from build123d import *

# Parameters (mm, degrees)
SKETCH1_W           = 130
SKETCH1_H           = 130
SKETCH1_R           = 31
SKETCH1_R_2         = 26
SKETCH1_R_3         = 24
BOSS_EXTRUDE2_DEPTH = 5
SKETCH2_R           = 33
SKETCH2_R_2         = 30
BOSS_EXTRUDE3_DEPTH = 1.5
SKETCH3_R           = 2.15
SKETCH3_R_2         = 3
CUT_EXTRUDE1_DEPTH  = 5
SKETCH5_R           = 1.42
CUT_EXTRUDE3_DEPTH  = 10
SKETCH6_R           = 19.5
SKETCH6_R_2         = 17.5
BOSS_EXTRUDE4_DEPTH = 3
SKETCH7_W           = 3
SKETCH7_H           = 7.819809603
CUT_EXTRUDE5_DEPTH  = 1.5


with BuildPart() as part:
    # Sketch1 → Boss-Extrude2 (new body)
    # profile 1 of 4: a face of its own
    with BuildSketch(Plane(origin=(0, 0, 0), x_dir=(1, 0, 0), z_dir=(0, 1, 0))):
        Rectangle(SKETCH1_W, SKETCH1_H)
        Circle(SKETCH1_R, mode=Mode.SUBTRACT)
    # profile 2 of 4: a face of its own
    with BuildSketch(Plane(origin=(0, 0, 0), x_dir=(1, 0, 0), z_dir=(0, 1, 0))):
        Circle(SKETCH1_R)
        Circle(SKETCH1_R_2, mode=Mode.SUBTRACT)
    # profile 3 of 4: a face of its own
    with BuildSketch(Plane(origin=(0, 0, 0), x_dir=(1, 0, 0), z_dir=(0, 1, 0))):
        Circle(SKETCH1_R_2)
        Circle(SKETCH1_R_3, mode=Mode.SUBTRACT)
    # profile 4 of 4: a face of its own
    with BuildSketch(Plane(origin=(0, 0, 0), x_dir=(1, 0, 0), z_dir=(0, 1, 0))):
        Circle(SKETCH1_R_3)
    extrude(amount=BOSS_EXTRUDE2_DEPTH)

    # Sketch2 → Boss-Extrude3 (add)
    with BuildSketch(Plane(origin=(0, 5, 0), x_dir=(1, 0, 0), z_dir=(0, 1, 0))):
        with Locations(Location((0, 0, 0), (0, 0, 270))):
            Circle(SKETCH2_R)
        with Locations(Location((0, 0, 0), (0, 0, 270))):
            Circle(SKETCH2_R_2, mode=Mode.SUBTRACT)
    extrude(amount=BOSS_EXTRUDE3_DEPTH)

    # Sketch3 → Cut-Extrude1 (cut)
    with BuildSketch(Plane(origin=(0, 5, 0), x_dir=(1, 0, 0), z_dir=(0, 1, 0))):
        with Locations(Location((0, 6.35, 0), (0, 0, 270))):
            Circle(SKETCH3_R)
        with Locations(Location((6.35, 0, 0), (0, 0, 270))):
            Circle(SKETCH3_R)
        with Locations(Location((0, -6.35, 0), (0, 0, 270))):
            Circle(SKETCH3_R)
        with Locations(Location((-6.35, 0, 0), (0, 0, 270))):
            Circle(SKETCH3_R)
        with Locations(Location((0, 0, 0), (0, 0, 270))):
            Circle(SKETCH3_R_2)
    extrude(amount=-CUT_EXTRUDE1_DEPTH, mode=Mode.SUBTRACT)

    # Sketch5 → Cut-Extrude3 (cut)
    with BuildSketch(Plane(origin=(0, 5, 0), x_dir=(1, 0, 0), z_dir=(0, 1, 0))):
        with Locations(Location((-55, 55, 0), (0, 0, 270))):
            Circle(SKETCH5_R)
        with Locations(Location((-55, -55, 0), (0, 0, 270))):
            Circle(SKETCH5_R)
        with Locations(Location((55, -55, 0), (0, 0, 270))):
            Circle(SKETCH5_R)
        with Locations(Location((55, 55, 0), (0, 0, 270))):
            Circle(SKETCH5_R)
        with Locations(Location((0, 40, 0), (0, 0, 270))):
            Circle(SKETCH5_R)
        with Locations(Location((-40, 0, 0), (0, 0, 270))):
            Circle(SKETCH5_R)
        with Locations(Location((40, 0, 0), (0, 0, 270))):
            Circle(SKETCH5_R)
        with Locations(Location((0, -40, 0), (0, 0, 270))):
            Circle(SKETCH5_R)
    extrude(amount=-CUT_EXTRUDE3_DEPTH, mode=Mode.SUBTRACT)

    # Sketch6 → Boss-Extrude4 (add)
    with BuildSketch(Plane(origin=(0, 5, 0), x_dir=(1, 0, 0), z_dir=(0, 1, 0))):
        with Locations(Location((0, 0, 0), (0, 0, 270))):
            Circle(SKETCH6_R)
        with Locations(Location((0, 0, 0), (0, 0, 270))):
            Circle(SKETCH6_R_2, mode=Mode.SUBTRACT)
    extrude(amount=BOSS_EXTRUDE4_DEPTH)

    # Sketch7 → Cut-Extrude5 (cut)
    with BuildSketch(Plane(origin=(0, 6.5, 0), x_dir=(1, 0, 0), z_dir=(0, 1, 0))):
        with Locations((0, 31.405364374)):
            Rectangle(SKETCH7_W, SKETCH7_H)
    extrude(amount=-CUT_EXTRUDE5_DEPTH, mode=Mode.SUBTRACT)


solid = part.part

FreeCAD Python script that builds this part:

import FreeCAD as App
import Part
import Sketcher


def add_polygon(sketch, points):
    """Adds a closed chain of lines whose ends are joined by coincident constraints."""
    first, n = sketch.GeometryCount, len(points)
    for a, b in zip(points, points[1:] + points[:1]):
        sketch.addGeometry(Part.LineSegment(App.Vector(*a, 0), App.Vector(*b, 0)), False)
    for i in range(n):
        sketch.addConstraint(Sketcher.Constraint("Coincident", first + i, 2, first + (i + 1) % n, 1))

doc = App.newDocument("Part")
body = doc.addObject("PartDesign::Body", "Body")

# Sketch on XZ plane
sketch1 = body.newObject("Sketcher::SketchObject", "Sketch")
sketch1.AttachmentSupport = (doc.getObject("XZ_Plane"), [""])
sketch1.MapMode = "FlatFace"
add_polygon(sketch1, [(-65, -65), (-65, 65), (65, 65), (65, -65)])  # lines 0-3
sketch1.addConstraint(Sketcher.Constraint("Vertical", 0))
sketch1.addConstraint(Sketcher.Constraint("Horizontal", 1))
sketch1.addConstraint(Sketcher.Constraint("Vertical", 2))
sketch1.addConstraint(Sketcher.Constraint("Horizontal", 3))
sketch1.addConstraint(Sketcher.Constraint("Symmetric", 0, 2, 2, 2, -1, 1))
sketch1.addConstraint(Sketcher.Constraint("Equal", 3, 0))
sketch1.addConstraint(Sketcher.Constraint("DistanceX", 1, 1, 1, 2, 130.0))
pad1 = body.newObject("PartDesign::Pad", "Pad")
pad1.Profile = sketch1
pad1.Length = 5
pad1.Reversed = True

# Sketch on XZ plane
sketch2 = body.newObject("Sketcher::SketchObject", "Sketch001")
sketch2.AttachmentSupport = (doc.getObject("XZ_Plane"), [""])
sketch2.MapMode = "FlatFace"
sketch2.AttachmentOffset = App.Placement(App.Vector(0, 0, -5), App.Rotation())
sketch2.addGeometry(Part.Circle(App.Vector(0, 0, 0), App.Vector(0, 0, 1), 33), False)
sketch2.addGeometry(Part.Circle(App.Vector(0, 0, 0), App.Vector(0, 0, 1), 30), False)
sketch2.addConstraint(Sketcher.Constraint("Coincident", 0, 3, -1, 1))
sketch2.addConstraint(Sketcher.Constraint("Coincident", 1, 3, -1, 1))
sketch2.addConstraint(Sketcher.Constraint("Diameter", 0, 66.0))
sketch2.addConstraint(Sketcher.Constraint("Diameter", 1, 60.0))
pad2 = body.newObject("PartDesign::Pad", "Pad001")
pad2.Profile = sketch2
pad2.Length = 1.5
pad2.Reversed = True

# Sketch on XZ plane
sketch3 = body.newObject("Sketcher::SketchObject", "Sketch002")
sketch3.AttachmentSupport = (doc.getObject("XZ_Plane"), [""])
sketch3.MapMode = "FlatFace"
sketch3.AttachmentOffset = App.Placement(App.Vector(0, 0, -5), App.Rotation())
sketch3.addGeometry(Part.Circle(App.Vector(0, -6.3, 0), App.Vector(0, 0, 1), 2.1), False)
sketch3.addGeometry(Part.Circle(App.Vector(6.3, 0, 0), App.Vector(0, 0, 1), 2.1), False)
sketch3.addGeometry(Part.Circle(App.Vector(0, 6.3, 0), App.Vector(0, 0, 1), 2.1), False)
sketch3.addGeometry(Part.Circle(App.Vector(-6.3, 0, 0), App.Vector(0, 0, 1), 2.1), False)
sketch3.addGeometry(Part.Circle(App.Vector(0, 0, 0), App.Vector(0, 0, 1), 3), False)
sketch3.addConstraint(Sketcher.Constraint("Coincident", 4, 3, -1, 1))
sketch3.addConstraint(Sketcher.Constraint("Equal", 0, 1))
sketch3.addConstraint(Sketcher.Constraint("Equal", 1, 2))
sketch3.addConstraint(Sketcher.Constraint("Equal", 2, 3))
sketch3.addConstraint(Sketcher.Constraint("Symmetric", 0, 3, 2, 3, -1, 1))
sketch3.addConstraint(Sketcher.Constraint("Symmetric", 1, 3, 3, 3, -1, 1))
sketch3.addConstraint(Sketcher.Constraint("PointOnObject", 0, 3, -2))
sketch3.addConstraint(Sketcher.Constraint("PointOnObject", 1, 3, -1))
sketch3.addConstraint(Sketcher.Constraint("Diameter", 4, 6.0))
sketch3.addConstraint(Sketcher.Constraint("Diameter", 0, 4.3))
sketch3.addConstraint(Sketcher.Constraint("DistanceY", 0, 3, 2, 3, 12.7))
sketch3.addConstraint(Sketcher.Constraint("DistanceX", 3, 3, 1, 3, 12.7))
pocket1 = body.newObject("PartDesign::Pocket", "Pocket")
pocket1.Profile = sketch3
pocket1.Length = 5
pocket1.Reversed = True

# Sketch on XZ plane
sketch4 = body.newObject("Sketcher::SketchObject", "Sketch003")
sketch4.AttachmentSupport = (doc.getObject("XZ_Plane"), [""])
sketch4.MapMode = "FlatFace"
sketch4.AttachmentOffset = App.Placement(App.Vector(0, 0, -5), App.Rotation())
sketch4.addGeometry(Part.Circle(App.Vector(-55, -55, 0), App.Vector(0, 0, 1), 1.4), False)
sketch4.addGeometry(Part.Circle(App.Vector(-55, 55, 0), App.Vector(0, 0, 1), 1.4), False)
sketch4.addGeometry(Part.Circle(App.Vector(55, 55, 0), App.Vector(0, 0, 1), 1.4), False)
sketch4.addGeometry(Part.Circle(App.Vector(55, -55, 0), App.Vector(0, 0, 1), 1.4), False)
sketch4.addGeometry(Part.Circle(App.Vector(0, -40, 0), App.Vector(0, 0, 1), 1.4), False)
sketch4.addGeometry(Part.Circle(App.Vector(-40, 0, 0), App.Vector(0, 0, 1), 1.4), False)
sketch4.addGeometry(Part.Circle(App.Vector(40, 0, 0), App.Vector(0, 0, 1), 1.4), False)
sketch4.addGeometry(Part.Circle(App.Vector(0, 40, 0), App.Vector(0, 0, 1), 1.4), False)
sketch4.addConstraint(Sketcher.Constraint("Equal", 0, 1))
sketch4.addConstraint(Sketcher.Constraint("Equal", 1, 2))
sketch4.addConstraint(Sketcher.Constraint("Equal", 2, 3))
sketch4.addConstraint(Sketcher.Constraint("Equal", 3, 4))
sketch4.addConstraint(Sketcher.Constraint("Equal", 4, 5))
sketch4.addConstraint(Sketcher.Constraint("Equal", 5, 6))
sketch4.addConstraint(Sketcher.Constraint("Equal", 6, 7))
sketch4.addConstraint(Sketcher.Constraint("Symmetric", 0, 3, 2, 3, -1, 1))
sketch4.addConstraint(Sketcher.Constraint("Symmetric", 1, 3, 3, 3, -1, 1))
sketch4.addConstraint(Sketcher.Constraint("Symmetric", 5, 3, 6, 3, -1, 1))
sketch4.addConstraint(Sketcher.Constraint("Symmetric", 4, 3, 7, 3, -1, 1))
sketch4.addConstraint(Sketcher.Constraint("Symmetric", 1, 3, 2, 3, -2))
sketch4.addConstraint(Sketcher.Constraint("PointOnObject", 4, 3, -2))
sketch4.addConstraint(Sketcher.Constraint("PointOnObject", 5, 3, -1))
sketch4.addConstraint(Sketcher.Constraint("Diameter", 0, 2.84))
sketch4.addConstraint(Sketcher.Constraint("DistanceX", 0, 3, -1, 1, 55.0))
sketch4.addConstraint(Sketcher.Constraint("DistanceY", 0, 3, -1, 1, 55.0))
sketch4.addConstraint(Sketcher.Constraint("DistanceY", 4, 3, -1, 1, 40.0))
sketch4.addConstraint(Sketcher.Constraint("DistanceX", 5, 3, -1, 1, 40.0))
pocket2 = body.newObject("PartDesign::Pocket", "Pocket001")
pocket2.Profile = sketch4
pocket2.Length = 10
pocket2.Reversed = True

# Sketch on XZ plane
sketch5 = body.newObject("Sketcher::SketchObject", "Sketch004")
sketch5.AttachmentSupport = (doc.getObject("XZ_Plane"), [""])
sketch5.MapMode = "FlatFace"
sketch5.AttachmentOffset = App.Placement(App.Vector(0, 0, -5), App.Rotation())
sketch5.addGeometry(Part.Circle(App.Vector(0, 0, 0), App.Vector(0, 0, 1), 20), False)
sketch5.addGeometry(Part.Circle(App.Vector(0, 0, 0), App.Vector(0, 0, 1), 18), False)
sketch5.addConstraint(Sketcher.Constraint("Coincident", 0, 3, -1, 1))
sketch5.addConstraint(Sketcher.Constraint("Coincident", 1, 3, -1, 1))
sketch5.addConstraint(Sketcher.Constraint("Diameter", 0, 39.0))
sketch5.addConstraint(Sketcher.Constraint("Diameter", 1, 35.0))
pad3 = body.newObject("PartDesign::Pad", "Pad002")
pad3.Profile = sketch5
pad3.Length = 3
pad3.Reversed = True

# Sketch on XZ plane
sketch6 = body.newObject("Sketcher::SketchObject", "Sketch005")
sketch6.AttachmentSupport = (doc.getObject("XZ_Plane"), [""])
sketch6.MapMode = "FlatFace"
sketch6.AttachmentOffset = App.Placement(App.Vector(0, 0, -6.5), App.Rotation())
add_polygon(sketch6, [(-1.5, -35.3), (-1.5, -27.5), (1.5, -27.5), (1.5, -35.3)])  # lines 0-3
sketch6.addConstraint(Sketcher.Constraint("Vertical", 0))
sketch6.addConstraint(Sketcher.Constraint("Horizontal", 1))
sketch6.addConstraint(Sketcher.Constraint("Vertical", 2))
sketch6.addConstraint(Sketcher.Constraint("Horizontal", 3))
sketch6.addConstraint(Sketcher.Constraint("DistanceX", 1, 1, 1, 2, 3.0))
sketch6.addConstraint(Sketcher.Constraint("DistanceX", 0, 2, -1, 1, 1.5))
sketch6.addConstraint(Sketcher.Constraint("DistanceY", 0, 1, 0, 2, 7.81981))
sketch6.addConstraint(Sketcher.Constraint("DistanceY", 0, 2, -1, 1, 27.49546))
pocket3 = body.newObject("PartDesign::Pocket", "Pocket002")
pocket3.Profile = sketch6
pocket3.Length = 1.5
pocket3.Reversed = True

doc.recompute()
